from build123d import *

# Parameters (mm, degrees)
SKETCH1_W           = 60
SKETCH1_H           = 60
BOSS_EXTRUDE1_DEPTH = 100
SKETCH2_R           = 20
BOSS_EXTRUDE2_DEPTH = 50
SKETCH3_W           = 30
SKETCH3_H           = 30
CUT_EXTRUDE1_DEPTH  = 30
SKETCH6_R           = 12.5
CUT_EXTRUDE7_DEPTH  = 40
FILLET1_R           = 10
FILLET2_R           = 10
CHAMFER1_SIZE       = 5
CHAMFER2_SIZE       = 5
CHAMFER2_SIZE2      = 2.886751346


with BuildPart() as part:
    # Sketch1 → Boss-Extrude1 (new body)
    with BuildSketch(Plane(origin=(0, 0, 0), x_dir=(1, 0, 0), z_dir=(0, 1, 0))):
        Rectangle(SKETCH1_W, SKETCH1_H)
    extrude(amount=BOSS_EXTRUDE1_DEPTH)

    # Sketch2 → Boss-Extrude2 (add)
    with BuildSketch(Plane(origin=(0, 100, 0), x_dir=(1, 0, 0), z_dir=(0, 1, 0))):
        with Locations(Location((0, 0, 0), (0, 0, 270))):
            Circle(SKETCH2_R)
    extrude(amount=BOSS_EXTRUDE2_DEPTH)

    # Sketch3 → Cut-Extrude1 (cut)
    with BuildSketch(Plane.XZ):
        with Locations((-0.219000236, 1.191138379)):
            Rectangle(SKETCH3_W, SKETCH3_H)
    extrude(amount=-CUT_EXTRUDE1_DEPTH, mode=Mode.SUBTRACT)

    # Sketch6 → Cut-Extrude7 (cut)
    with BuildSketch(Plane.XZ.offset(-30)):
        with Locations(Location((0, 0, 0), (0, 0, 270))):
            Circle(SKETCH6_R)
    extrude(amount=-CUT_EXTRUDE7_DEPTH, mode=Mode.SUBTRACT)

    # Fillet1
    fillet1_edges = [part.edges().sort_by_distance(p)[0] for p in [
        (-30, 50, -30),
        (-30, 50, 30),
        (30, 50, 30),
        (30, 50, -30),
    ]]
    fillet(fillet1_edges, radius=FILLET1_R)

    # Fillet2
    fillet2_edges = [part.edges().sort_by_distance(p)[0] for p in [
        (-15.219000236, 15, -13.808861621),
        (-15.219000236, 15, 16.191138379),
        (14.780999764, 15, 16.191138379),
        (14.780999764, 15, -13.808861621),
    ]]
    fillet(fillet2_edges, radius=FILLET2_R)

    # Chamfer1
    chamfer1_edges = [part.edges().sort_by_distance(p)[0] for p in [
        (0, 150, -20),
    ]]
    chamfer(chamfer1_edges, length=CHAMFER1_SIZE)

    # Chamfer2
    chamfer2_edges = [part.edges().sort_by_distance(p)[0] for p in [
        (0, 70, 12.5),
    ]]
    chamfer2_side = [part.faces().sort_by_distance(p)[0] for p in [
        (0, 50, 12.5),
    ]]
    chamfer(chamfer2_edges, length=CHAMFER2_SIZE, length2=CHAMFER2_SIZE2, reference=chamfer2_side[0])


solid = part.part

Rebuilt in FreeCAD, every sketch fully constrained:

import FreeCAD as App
import Part
import Sketcher


def edges_at(feature, points):
    """Names of the edges that pass closest to the given points."""
    edges = feature.Shape.Edges
    near = lambda p: min(range(len(edges)), key=lambda i: edges[i].distToShape(Part.Vertex(*p))[0])
    return sorted({f"Edge{near(p) + 1}" for p in points})


def add_polygon(sketch, points):
    """Adds a closed chain of lines whose ends are joined by coincident constraints."""
    first, n = sketch.GeometryCount, len(points)
    for a, b in zip(points, points[1:] + points[:1]):
        sketch.addGeometry(Part.LineSegment(App.Vector(*a, 0), App.Vector(*b, 0)), False)
    for i in range(n):
        sketch.addConstraint(Sketcher.Constraint("Coincident", first + i, 2, first + (i + 1) % n, 1))

doc = App.newDocument("Part")
body = doc.addObject("PartDesign::Body", "Body")

# Sketch on XZ plane
sketch1 = doc.addObject("Sketcher::SketchObject", "Sketch")
body.addObject(sketch1)
sketch1.AttachmentSupport = (doc.XZ_Plane, [""])
sketch1.MapMode = "FlatFace"
add_polygon(sketch1, [(-30, -30), (-30, 30), (30, 30), (30, -30)])  # lines 0-3
sketch1.addConstraint([
    Sketcher.Constraint("Vertical", 0),
    Sketcher.Constraint("Horizontal", 1),
    Sketcher.Constraint("Vertical", 2),
    Sketcher.Constraint("Horizontal", 3),
    Sketcher.Constraint("Symmetric", 0, 2, 2, 2, -1, 1),
    Sketcher.Constraint("Equal", 3, 0),
    Sketcher.Constraint("DistanceX", 1, 1, 1, 2, 60.0),
])
pad1 = doc.addObject("PartDesign::Pad", "Pad")
body.addObject(pad1)
pad1.Profile = sketch1
pad1.Length = 100
pad1.Reversed = True

# Sketch on XZ plane
sketch2 = doc.addObject("Sketcher::SketchObject", "Sketch001")
body.addObject(sketch2)
sketch2.AttachmentSupport = (doc.XZ_Plane, [""])
sketch2.MapMode = "FlatFace"
sketch2.AttachmentOffset = App.Placement(App.Vector(0, 0, -100), App.Rotation())
sketch2.addGeometry(Part.Circle(App.Vector(0, 0, 0), App.Vector(0, 0, 1), 20), False)
sketch2.addConstraint([
    Sketcher.Constraint("Coincident", 0, 3, -1, 1),
    Sketcher.Constraint("Diameter", 0, 40.0),
])
pad2 = doc.addObject("PartDesign::Pad", "Pad001")
body.addObject(pad2)
pad2.Profile = sketch2
pad2.Length = 50
pad2.Reversed = True

# Sketch on XZ plane
sketch3 = doc.addObject("Sketcher::SketchObject", "Sketch002")
body.addObject(sketch3)
sketch3.AttachmentSupport = (doc.XZ_Plane, [""])
sketch3.MapMode = "FlatFace"
add_polygon(sketch3, [(-15, 16), (-15, -14), (15, -14), (15, 16)])  # lines 0-3
sketch3.addConstraint([
    Sketcher.Constraint("Vertical", 0),
    Sketcher.Constraint("Horizontal", 1),
    Sketcher.Constraint("Vertical", 2),
    Sketcher.Constraint("Horizontal", 3),
    Sketcher.Constraint("Equal", 3, 0),
    Sketcher.Constraint("DistanceX", 1, 1, 1, 2, 30.0),
    Sketcher.Constraint("DistanceX", 0, 2, -1, 1, 15.219),
    Sketcher.Constraint("DistanceY", 0, 2, -1, 1, 13.808862),
])
pocket1 = doc.addObject("PartDesign::Pocket", "Pocket")
body.addObject(pocket1)
pocket1.Profile = sketch3
pocket1.Length = 30

# Sketch on XZ plane
sketch4 = doc.addObject("Sketcher::SketchObject", "Sketch003")
body.addObject(sketch4)
sketch4.AttachmentSupport = (doc.XZ_Plane, [""])
sketch4.MapMode = "FlatFace"
sketch4.AttachmentOffset = App.Placement(App.Vector(0, 0, -30), App.Rotation())
sketch4.addGeometry(Part.Circle(App.Vector(0, 0, 0), App.Vector(0, 0, 1), 12), False)
sketch4.addConstraint([
    Sketcher.Constraint("Coincident", 0, 3, -1, 1),
    Sketcher.Constraint("Diameter", 0, 25.0),
])
pocket2 = doc.addObject("PartDesign::Pocket", "Pocket001")
body.addObject(pocket2)
pocket2.Profile = sketch4
pocket2.Length = 40
doc.recompute()

fillet = doc.addObject("PartDesign::Fillet", "Fillet")
body.addObject(fillet)
fillet.Base = (pocket2, edges_at(pocket2, [
    (-30, 50, -30),
    (-30, 50, 30),
    (30, 50, 30),
    (30, 50, -30),
]))
fillet.Radius = 10
doc.recompute()

fillet2 = doc.addObject("PartDesign::Fillet", "Fillet001")
body.addObject(fillet2)
fillet2.Base = (fillet, edges_at(fillet, [
    (-15.219, 15, -13.809),
    (-15.219, 15, 16.191),
    (14.781, 15, 16.191),
    (14.781, 15, -13.809),
]))
fillet2.Radius = 10
doc.recompute()

chamfer = doc.addObject("PartDesign::Chamfer", "Chamfer")
body.addObject(chamfer)
chamfer.Base = (fillet2, edges_at(fillet2, [(0, 150, -20)]))
chamfer.Size = 5
doc.recompute()

chamfer2 = doc.addObject("PartDesign::Chamfer", "Chamfer001")
body.addObject(chamfer2)
chamfer2.Base = (chamfer, edges_at(chamfer, [(0, 70, 12.5)]))
chamfer2.ChamferType = "Two distances"
chamfer2.Size = 5
chamfer2.Size2 = 2.886751

doc.recompute()
